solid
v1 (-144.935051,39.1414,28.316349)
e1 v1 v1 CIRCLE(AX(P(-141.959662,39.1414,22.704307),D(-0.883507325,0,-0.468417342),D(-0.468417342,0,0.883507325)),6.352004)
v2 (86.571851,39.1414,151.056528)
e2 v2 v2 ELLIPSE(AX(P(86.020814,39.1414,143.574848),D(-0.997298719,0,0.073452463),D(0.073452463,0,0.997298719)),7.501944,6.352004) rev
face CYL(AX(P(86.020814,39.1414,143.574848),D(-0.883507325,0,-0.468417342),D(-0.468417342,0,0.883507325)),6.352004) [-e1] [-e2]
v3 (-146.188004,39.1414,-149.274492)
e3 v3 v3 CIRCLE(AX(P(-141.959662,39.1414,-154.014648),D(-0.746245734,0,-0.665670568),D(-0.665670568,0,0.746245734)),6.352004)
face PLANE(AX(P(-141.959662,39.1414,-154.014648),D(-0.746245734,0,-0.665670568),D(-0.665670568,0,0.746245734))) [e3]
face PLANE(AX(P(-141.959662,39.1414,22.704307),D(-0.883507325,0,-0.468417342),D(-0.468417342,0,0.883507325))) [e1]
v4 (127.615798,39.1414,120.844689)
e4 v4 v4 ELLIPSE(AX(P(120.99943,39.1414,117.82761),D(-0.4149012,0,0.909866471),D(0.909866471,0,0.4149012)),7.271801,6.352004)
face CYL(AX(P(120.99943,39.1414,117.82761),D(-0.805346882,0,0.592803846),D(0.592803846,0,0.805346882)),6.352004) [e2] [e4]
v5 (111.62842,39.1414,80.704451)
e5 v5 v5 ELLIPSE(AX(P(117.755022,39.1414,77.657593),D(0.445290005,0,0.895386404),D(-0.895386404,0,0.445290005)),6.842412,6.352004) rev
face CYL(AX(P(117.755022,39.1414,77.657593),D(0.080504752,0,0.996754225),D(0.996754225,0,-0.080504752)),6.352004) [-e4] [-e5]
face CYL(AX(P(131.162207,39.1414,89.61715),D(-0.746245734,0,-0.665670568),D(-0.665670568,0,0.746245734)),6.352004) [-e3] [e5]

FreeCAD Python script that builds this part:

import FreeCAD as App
import Part
import Sketcher
from FreeCAD import Vector
Q = App.Units.Quantity

doc = App.newDocument("Part")
body = doc.addObject("PartDesign::Body", "Body")

sketch1 = body.newObject("Sketcher::SketchObject", "Sketch")
sketch1.Placement = App.Placement(Vector(-141.959662, 39.1414, -154.014648), App.Rotation(Vector(-0.665670568, 0, 0.746245734), Vector(0, 1.000000001, 0), Vector(-0.746245734, 0, -0.665670568), "ZXY"))
sketch1.addGeometry(Part.Circle(Vector(0, 0, 0), Vector(0, 0, 1), 6.352004), False)
sketch1.addConstraint(Sketcher.Constraint("Coincident", 0, 3, -1, 1))
sketch1.addConstraint(Sketcher.Constraint("Diameter", 0, Q("12.704007 mm")))

sketch2 = body.newObject("Sketcher::SketchObject", "Sketch001")
sketch2.AttachmentSupport = (doc.getObject("XZ_Plane"), [""])
sketch2.MapMode = "FlatFace"
sketch2.AttachmentOffset = App.Placement(Vector(0, 0, -39.1414), App.Rotation())
sketch2.addGeometry(Part.LineSegment(Vector(-141.959662, 22.704307, 0), Vector(86.020814, 143.574848, 0)), False)
sketch2.addGeometry(Part.LineSegment(Vector(86.020814, 143.574848, 0), Vector(120.99943, 117.82761, 0)), False)
sketch2.addGeometry(Part.LineSegment(Vector(120.99943, 117.82761, 0), Vector(117.755022, 77.657593, 0)), False)
sketch2.addGeometry(Part.LineSegment(Vector(117.755022, 77.657593, 0), Vector(-141.959662, -154.014648, 0)), False)
sketch2.addConstraint(Sketcher.Constraint("Coincident", 0, 2, 1, 1))
sketch2.addConstraint(Sketcher.Constraint("Coincident", 1, 2, 2, 1))
sketch2.addConstraint(Sketcher.Constraint("Coincident", 2, 2, 3, 1))
sketch2.addConstraint(Sketcher.Constraint("Vertical", 0, 1, 3, 2))
sketch2.addConstraint(Sketcher.Constraint("Distance", 0, Q("258.040279 mm")))
sketch2.addConstraint(Sketcher.Constraint("Distance", 1, Q("43.432981 mm")))
sketch2.addConstraint(Sketcher.Constraint("DistanceY", -1, 1, 0, 2, Q("143.574848 mm")))
sketch2.addConstraint(Sketcher.Constraint("DistanceX", -1, 1, 1, 2, Q("120.99943 mm")))
sketch2.addConstraint(Sketcher.Constraint("DistanceY", -1, 1, 1, 2, Q("117.82761 mm")))
sketch2.addConstraint(Sketcher.Constraint("DistanceY", 3, 2, -1, 1, Q("154.014648 mm")))
sketch2.addConstraint(Sketcher.Constraint("DistanceY", 0, 1, 0, 2, Q("120.870542 mm")))
sketch2.addConstraint(Sketcher.Constraint("DistanceY", 3, 2, 2, 2, Q("231.672241 mm")))
sketch2.addConstraint(Sketcher.Constraint("Distance", 2, Q("40.300825 mm")))
doc.recompute()

additivepipe = body.newObject("PartDesign::AdditivePipe", "AdditivePipe")
additivepipe.Profile = sketch1
additivepipe.Spine = (sketch2, ["Edge1", "Edge2", "Edge3", "Edge4"])
additivepipe.Transition = "Right corner"

doc.recompute()
